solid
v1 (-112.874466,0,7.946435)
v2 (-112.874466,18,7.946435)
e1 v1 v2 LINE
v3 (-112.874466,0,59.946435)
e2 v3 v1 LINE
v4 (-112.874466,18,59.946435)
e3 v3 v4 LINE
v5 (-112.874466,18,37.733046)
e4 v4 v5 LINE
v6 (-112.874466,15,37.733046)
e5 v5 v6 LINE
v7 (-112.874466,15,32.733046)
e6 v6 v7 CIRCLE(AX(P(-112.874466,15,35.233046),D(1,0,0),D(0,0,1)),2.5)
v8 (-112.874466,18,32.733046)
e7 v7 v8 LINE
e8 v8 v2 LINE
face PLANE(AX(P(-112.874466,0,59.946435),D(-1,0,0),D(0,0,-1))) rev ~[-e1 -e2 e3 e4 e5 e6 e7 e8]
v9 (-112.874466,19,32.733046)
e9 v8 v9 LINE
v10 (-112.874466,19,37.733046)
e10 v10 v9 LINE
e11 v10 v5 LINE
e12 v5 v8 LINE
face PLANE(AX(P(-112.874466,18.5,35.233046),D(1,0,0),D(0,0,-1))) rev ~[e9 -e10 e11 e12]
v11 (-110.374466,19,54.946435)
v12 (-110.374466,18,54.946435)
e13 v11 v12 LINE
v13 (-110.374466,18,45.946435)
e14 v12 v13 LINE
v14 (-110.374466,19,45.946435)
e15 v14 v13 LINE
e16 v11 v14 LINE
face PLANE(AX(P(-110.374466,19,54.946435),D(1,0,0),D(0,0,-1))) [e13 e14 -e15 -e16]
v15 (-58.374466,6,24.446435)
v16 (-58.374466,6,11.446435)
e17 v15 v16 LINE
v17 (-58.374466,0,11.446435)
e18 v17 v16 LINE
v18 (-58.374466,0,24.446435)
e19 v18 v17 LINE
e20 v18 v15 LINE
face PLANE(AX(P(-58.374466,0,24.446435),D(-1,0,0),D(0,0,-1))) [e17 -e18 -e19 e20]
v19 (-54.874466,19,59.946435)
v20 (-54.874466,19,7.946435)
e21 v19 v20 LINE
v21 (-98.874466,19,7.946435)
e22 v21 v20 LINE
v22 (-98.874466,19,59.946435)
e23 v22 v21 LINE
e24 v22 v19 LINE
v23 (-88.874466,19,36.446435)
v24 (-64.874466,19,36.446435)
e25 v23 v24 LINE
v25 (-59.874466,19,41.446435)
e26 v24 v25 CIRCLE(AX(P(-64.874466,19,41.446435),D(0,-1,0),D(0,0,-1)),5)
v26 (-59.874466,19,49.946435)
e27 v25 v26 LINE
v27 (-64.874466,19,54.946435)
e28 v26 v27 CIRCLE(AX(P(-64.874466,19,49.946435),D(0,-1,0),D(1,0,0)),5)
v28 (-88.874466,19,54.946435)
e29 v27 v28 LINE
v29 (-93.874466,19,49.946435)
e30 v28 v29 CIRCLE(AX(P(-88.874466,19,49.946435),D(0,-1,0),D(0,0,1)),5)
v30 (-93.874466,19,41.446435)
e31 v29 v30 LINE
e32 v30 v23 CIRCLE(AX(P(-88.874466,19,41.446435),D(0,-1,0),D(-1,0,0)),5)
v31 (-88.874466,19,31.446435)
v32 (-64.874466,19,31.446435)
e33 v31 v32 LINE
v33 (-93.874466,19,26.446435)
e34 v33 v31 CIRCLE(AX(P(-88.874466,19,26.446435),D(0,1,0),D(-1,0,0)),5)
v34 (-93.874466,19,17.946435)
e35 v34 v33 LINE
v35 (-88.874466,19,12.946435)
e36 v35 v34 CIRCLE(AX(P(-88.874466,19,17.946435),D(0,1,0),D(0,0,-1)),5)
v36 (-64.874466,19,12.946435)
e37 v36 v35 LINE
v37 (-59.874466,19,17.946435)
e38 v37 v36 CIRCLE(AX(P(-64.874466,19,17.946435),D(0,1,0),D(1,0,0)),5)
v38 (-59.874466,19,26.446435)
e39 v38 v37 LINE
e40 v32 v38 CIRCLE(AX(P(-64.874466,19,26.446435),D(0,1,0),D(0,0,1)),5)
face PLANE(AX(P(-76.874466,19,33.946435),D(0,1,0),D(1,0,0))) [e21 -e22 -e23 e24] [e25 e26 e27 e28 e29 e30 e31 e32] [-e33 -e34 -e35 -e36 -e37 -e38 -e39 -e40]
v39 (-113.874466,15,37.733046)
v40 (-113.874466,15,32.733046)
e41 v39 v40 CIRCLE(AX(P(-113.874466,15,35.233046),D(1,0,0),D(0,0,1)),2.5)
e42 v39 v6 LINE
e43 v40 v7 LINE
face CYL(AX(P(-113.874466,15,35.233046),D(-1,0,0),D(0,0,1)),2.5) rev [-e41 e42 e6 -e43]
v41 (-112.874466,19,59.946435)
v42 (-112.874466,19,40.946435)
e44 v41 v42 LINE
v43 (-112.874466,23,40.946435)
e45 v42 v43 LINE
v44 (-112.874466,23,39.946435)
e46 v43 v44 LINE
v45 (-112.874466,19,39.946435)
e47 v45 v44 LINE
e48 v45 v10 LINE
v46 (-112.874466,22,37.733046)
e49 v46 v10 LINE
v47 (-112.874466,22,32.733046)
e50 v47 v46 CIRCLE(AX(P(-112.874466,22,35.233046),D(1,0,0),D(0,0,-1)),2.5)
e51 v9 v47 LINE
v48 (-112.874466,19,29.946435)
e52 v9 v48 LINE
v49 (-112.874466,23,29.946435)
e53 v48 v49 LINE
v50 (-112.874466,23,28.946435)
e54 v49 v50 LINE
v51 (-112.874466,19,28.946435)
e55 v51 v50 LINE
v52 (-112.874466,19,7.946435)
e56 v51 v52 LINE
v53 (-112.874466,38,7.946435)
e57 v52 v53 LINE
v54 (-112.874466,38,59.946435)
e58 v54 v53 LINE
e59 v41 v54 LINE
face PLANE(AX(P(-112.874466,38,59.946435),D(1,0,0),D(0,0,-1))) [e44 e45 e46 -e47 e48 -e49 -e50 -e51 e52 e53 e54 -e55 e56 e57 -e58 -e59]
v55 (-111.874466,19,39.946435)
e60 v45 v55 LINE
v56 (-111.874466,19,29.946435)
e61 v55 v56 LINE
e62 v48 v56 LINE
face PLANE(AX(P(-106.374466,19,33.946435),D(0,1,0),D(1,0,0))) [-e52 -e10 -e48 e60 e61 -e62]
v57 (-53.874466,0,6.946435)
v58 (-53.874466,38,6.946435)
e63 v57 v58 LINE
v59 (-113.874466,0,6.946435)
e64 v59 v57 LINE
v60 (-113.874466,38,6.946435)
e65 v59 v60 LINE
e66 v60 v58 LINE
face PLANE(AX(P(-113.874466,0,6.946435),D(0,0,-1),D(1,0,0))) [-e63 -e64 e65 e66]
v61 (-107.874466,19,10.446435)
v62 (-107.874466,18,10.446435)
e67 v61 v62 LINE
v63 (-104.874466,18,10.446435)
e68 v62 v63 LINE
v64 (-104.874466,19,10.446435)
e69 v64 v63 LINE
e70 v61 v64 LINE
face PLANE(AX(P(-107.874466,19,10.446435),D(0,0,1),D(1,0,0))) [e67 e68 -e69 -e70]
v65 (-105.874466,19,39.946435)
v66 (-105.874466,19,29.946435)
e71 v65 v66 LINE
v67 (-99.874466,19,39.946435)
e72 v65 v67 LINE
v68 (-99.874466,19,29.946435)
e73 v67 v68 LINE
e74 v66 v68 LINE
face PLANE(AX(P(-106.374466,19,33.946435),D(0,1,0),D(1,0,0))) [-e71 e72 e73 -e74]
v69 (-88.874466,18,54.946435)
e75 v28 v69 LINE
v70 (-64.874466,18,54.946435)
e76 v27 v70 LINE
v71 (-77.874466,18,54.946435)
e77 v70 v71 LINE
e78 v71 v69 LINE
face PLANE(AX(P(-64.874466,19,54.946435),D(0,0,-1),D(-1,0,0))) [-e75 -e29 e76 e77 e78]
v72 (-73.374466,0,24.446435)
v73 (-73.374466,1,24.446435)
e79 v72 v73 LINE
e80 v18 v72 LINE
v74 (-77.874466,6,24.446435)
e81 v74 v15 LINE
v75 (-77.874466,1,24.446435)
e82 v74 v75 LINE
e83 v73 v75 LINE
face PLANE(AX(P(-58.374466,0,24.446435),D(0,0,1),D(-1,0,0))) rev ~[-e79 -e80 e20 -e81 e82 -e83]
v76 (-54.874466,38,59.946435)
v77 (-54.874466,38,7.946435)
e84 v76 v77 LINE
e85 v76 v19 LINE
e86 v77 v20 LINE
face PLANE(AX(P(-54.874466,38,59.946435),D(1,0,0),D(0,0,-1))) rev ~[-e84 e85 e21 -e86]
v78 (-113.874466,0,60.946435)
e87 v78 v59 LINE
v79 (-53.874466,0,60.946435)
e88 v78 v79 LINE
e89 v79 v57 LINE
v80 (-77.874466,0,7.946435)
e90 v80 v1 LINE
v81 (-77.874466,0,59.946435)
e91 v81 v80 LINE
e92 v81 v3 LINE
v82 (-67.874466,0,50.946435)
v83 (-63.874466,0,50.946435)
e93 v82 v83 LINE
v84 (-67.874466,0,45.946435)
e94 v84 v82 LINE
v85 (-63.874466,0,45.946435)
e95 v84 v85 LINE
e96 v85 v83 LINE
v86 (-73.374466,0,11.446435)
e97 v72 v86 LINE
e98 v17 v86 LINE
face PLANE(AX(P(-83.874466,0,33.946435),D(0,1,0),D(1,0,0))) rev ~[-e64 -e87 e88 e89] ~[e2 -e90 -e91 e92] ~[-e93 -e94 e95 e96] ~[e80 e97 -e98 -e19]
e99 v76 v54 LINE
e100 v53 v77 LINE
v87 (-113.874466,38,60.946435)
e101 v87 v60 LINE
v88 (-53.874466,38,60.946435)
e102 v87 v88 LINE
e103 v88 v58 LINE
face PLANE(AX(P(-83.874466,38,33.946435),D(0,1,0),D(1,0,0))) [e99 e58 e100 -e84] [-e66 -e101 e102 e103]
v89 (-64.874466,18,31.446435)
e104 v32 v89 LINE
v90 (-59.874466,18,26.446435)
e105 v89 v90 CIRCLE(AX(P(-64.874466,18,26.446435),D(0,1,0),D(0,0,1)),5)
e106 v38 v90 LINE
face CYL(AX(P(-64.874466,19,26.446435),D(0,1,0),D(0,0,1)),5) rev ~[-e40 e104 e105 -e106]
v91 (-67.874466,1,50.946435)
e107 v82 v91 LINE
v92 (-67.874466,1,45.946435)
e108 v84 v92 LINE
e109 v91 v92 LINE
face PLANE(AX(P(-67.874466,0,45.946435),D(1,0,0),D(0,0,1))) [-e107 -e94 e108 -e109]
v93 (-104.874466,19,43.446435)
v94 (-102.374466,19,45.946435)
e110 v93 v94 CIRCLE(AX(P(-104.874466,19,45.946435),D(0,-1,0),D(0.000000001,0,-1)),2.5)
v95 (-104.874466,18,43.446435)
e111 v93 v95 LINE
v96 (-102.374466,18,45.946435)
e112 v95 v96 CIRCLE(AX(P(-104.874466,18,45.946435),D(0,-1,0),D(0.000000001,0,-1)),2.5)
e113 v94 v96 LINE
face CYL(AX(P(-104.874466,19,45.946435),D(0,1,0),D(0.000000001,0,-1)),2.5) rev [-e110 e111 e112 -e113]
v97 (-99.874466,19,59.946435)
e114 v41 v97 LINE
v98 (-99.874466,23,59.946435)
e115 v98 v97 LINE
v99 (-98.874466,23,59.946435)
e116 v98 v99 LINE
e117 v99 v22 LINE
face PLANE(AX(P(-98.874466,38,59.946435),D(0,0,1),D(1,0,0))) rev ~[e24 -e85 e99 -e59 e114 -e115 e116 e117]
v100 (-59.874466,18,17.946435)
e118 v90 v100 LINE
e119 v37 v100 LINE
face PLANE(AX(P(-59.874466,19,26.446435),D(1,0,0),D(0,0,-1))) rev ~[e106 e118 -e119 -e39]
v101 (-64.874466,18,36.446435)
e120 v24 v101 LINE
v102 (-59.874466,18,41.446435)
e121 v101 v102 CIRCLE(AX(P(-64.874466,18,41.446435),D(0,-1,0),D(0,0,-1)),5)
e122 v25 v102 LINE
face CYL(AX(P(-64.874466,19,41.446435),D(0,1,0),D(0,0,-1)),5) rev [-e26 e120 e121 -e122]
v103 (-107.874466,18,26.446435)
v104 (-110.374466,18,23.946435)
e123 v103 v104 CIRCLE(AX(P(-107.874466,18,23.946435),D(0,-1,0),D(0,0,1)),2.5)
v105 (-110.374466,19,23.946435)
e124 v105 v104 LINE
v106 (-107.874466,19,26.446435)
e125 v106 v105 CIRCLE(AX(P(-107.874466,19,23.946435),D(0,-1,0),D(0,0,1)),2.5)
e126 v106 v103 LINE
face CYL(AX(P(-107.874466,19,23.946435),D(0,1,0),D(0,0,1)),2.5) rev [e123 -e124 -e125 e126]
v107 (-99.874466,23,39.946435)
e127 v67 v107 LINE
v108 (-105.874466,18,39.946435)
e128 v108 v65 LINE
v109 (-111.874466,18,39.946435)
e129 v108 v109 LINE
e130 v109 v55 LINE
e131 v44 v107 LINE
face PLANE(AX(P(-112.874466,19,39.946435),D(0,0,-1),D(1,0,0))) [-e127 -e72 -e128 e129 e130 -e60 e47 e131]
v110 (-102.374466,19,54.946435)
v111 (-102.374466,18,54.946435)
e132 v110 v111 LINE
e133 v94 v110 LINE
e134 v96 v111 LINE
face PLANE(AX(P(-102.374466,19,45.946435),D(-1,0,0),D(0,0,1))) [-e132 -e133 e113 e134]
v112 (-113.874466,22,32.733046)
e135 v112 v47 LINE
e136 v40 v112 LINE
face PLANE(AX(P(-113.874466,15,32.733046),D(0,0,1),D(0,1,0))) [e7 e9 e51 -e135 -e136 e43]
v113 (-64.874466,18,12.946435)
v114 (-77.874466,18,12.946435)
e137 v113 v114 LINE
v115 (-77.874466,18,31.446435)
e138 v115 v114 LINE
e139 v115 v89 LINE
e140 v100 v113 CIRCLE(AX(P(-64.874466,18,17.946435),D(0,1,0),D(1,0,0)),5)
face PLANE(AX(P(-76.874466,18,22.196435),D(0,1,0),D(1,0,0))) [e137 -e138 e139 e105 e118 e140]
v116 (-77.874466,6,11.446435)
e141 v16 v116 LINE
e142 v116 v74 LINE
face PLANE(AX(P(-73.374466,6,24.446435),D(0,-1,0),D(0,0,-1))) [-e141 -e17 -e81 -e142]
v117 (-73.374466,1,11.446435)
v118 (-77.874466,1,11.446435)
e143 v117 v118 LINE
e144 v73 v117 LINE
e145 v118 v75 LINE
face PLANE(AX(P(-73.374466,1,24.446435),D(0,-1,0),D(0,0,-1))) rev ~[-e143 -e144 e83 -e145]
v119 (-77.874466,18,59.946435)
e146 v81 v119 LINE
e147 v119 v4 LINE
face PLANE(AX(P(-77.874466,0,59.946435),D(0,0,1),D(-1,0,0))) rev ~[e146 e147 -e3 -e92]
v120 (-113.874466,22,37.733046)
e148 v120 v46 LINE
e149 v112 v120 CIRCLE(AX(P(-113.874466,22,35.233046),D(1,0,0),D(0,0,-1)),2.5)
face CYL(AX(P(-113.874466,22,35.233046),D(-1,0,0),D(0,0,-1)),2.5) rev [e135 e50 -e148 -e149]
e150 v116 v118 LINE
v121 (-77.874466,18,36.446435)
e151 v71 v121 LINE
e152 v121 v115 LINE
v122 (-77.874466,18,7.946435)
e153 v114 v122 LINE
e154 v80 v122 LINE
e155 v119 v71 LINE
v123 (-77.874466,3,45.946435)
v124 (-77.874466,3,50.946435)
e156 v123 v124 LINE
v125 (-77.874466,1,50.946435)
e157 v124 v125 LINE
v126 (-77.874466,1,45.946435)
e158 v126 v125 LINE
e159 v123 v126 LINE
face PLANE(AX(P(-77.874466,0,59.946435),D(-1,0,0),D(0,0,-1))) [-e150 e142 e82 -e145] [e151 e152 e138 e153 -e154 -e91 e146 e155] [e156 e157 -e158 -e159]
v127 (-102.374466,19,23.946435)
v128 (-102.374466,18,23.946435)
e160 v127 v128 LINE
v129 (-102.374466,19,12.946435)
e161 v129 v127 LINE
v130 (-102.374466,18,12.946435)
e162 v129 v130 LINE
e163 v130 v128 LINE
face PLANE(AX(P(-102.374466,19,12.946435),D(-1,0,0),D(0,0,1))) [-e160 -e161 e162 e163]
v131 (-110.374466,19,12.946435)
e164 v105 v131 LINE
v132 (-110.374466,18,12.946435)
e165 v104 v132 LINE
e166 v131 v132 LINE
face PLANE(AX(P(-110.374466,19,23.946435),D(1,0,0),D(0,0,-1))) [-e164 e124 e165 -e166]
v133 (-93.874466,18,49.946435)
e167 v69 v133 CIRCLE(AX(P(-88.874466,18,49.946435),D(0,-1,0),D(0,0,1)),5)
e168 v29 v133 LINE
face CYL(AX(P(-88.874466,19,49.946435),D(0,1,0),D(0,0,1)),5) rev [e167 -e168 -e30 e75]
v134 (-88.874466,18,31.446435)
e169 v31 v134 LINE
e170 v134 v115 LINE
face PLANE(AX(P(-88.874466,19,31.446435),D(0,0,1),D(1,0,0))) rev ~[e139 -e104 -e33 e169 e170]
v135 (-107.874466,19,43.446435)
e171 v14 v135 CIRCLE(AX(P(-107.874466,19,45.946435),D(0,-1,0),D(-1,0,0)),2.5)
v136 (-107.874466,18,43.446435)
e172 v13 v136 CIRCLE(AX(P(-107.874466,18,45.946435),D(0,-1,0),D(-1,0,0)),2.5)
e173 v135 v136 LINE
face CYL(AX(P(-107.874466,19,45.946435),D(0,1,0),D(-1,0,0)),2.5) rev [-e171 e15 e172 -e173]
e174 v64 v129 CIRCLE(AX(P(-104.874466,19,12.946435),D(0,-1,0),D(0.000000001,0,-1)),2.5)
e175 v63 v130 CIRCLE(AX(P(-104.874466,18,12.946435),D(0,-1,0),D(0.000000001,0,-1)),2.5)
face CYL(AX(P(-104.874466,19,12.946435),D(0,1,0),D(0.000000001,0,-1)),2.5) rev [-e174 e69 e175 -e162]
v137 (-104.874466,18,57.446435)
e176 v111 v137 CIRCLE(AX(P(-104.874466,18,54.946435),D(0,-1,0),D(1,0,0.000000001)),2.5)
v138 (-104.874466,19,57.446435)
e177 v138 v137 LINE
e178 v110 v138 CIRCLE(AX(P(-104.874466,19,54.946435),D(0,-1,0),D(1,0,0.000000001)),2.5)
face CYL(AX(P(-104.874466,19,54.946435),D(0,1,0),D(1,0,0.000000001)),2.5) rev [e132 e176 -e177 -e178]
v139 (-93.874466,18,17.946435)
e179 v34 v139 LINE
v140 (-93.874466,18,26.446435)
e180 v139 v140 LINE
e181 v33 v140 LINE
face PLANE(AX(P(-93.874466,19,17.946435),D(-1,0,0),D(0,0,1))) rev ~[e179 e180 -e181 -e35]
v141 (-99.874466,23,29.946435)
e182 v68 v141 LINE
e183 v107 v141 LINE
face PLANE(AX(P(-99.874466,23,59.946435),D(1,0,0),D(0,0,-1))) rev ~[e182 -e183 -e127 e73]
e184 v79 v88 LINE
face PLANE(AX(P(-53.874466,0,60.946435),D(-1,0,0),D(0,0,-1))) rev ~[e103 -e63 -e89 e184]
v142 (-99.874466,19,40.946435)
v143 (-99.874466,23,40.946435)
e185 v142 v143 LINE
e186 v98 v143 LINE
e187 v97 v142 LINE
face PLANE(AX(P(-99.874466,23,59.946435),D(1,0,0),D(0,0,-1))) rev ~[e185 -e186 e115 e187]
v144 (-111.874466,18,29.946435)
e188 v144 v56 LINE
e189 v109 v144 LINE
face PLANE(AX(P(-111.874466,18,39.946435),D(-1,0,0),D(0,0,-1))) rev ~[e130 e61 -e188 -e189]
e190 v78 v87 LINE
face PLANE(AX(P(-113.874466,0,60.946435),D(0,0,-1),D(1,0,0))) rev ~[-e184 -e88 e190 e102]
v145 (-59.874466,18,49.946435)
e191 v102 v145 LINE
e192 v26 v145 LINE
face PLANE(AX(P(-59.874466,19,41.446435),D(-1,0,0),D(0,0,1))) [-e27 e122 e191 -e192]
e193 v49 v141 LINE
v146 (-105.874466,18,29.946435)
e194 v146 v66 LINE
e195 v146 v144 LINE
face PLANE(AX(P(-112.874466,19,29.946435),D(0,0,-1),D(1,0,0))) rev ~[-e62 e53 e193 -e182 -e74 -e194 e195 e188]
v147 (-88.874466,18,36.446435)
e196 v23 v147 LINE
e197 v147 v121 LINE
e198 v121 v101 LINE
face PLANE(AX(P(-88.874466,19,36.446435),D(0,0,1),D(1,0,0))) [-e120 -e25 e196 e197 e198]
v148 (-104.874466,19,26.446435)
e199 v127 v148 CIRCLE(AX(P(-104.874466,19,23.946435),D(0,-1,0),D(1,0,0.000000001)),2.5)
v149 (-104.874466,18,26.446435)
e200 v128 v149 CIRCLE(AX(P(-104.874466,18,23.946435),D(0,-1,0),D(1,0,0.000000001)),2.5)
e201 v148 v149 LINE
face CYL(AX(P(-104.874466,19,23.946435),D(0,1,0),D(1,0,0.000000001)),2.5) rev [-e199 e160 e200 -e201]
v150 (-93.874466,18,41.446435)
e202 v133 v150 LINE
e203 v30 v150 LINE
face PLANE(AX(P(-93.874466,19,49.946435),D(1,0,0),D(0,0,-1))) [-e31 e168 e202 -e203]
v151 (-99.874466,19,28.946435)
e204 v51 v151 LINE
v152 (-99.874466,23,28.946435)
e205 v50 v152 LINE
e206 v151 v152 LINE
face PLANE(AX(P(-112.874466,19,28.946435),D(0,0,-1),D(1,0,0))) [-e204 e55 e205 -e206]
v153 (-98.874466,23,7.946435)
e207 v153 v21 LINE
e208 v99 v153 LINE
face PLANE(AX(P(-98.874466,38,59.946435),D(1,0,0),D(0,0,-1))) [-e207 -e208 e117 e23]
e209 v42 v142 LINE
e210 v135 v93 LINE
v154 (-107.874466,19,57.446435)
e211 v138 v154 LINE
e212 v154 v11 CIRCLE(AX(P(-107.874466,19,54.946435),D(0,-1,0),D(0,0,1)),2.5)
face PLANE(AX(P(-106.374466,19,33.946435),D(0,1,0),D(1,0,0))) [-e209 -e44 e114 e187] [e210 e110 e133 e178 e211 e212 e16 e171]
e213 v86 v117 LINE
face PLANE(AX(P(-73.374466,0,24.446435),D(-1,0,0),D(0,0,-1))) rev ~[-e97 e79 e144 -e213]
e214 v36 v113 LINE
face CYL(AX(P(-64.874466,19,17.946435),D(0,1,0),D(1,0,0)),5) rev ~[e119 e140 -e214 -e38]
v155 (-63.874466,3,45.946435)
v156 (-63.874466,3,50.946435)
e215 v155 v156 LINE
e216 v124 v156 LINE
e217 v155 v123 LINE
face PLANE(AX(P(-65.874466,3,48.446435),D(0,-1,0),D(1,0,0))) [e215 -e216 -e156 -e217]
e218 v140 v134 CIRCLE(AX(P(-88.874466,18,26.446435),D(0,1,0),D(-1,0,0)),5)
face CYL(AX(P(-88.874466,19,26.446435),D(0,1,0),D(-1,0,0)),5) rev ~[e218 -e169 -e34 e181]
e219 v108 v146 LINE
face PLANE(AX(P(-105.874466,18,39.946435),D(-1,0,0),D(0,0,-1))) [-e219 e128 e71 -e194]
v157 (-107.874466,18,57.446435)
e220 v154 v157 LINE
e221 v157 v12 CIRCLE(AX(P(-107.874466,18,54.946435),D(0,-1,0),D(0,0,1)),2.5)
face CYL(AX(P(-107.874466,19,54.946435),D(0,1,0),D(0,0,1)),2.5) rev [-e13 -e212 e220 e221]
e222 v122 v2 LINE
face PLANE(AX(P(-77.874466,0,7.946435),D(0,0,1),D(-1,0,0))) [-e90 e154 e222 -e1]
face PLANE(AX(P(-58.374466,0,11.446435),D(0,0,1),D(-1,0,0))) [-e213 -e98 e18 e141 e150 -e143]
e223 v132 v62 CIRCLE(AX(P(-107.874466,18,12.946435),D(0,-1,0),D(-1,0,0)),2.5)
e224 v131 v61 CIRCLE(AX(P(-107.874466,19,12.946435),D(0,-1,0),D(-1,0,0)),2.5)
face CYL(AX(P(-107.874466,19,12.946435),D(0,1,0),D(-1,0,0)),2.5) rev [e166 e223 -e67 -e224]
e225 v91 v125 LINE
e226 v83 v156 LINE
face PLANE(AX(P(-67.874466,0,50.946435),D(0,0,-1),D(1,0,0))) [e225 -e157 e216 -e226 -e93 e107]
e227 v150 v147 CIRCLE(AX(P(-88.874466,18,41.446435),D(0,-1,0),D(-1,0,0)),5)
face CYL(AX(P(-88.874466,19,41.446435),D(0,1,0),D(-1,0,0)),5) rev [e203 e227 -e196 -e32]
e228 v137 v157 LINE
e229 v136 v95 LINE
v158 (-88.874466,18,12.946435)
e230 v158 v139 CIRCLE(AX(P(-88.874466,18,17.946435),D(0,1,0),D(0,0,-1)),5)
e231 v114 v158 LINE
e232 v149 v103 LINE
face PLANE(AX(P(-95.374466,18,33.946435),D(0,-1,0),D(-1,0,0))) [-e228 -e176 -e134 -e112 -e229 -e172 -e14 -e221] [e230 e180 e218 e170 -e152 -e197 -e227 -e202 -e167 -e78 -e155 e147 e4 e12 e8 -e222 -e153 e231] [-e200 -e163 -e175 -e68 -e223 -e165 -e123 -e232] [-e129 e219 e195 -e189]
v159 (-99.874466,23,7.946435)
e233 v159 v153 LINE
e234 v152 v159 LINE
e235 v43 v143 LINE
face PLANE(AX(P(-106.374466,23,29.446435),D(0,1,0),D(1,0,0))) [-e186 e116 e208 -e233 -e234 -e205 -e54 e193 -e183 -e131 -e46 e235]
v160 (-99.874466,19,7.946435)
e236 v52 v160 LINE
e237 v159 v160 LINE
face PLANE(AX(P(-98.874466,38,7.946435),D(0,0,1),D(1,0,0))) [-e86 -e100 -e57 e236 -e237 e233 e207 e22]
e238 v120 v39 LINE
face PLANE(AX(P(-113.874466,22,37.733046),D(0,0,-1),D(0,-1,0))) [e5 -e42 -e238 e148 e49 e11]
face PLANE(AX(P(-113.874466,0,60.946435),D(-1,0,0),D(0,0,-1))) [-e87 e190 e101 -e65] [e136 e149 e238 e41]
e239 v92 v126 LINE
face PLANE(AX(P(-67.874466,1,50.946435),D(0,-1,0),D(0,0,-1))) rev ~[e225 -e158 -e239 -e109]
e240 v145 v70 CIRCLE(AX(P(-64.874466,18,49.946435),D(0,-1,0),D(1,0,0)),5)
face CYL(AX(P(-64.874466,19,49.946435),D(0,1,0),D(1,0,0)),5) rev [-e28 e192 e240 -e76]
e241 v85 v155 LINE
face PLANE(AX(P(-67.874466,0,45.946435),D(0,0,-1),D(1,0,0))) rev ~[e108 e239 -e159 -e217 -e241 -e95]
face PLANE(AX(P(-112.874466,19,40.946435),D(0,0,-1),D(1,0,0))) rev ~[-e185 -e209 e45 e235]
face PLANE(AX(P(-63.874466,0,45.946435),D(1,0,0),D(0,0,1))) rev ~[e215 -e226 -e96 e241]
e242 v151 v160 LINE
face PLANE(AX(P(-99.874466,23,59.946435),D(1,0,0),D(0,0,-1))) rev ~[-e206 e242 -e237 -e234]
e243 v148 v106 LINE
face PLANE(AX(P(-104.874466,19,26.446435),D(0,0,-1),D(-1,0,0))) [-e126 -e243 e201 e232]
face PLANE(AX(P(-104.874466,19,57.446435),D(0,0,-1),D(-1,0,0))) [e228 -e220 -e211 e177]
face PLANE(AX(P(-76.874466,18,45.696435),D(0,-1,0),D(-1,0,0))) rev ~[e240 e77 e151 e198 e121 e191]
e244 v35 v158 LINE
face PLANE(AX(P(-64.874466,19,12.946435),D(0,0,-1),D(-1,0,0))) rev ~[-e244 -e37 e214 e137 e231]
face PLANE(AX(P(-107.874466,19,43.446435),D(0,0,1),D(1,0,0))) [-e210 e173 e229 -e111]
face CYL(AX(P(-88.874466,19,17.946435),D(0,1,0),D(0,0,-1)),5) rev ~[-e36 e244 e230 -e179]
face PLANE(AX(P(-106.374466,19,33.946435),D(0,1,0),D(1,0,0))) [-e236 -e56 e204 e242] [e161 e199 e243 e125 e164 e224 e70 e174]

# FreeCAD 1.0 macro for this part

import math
import FreeCAD as App
import Part
import Sketcher

V = App.Vector

doc = App.newDocument("Part")
body = doc.addObject("PartDesign::Body", "Body")

# Sketch on XZ plane
sketch1 = body.newObject("Sketcher::SketchObject", "Sketch")
sketch1.AttachmentSupport = (doc.getObject("XZ_Plane"), [""])
sketch1.MapMode = "FlatFace"
sketch1.addGeometry(Part.LineSegment(V(-114, 7, 0), V(-114, 61, 0)), False)
sketch1.addGeometry(Part.LineSegment(V(-114, 61, 0), V(-54, 61, 0)), False)
sketch1.addGeometry(Part.LineSegment(V(-54, 61, 0), V(-54, 7, 0)), False)
sketch1.addGeometry(Part.LineSegment(V(-54, 7, 0), V(-114, 7, 0)), False)
sketch1.addConstraint(Sketcher.Constraint("Coincident", 0, 2, 1, 1))
sketch1.addConstraint(Sketcher.Constraint("Coincident", 1, 2, 2, 1))
sketch1.addConstraint(Sketcher.Constraint("Coincident", 2, 2, 3, 1))
sketch1.addConstraint(Sketcher.Constraint("Coincident", 3, 2, 0, 1))
sketch1.addConstraint(Sketcher.Constraint("Vertical", 0))
sketch1.addConstraint(Sketcher.Constraint("Horizontal", 1))
sketch1.addConstraint(Sketcher.Constraint("Vertical", 2))
sketch1.addConstraint(Sketcher.Constraint("Horizontal", 3))
sketch1.addConstraint(Sketcher.Constraint("DistanceX", 1, 1, 1, 2, 60.0))
sketch1.addConstraint(Sketcher.Constraint("DistanceY", 0, 1, 0, 2, 54.0))
sketch1.addConstraint(Sketcher.Constraint("DistanceX", 0, 2, -1, 1, 113.874466))
sketch1.addConstraint(Sketcher.Constraint("DistanceY", -1, 1, 0, 2, 60.946435))
pad1 = body.newObject("PartDesign::Pad", "Pad")
pad1.Profile = sketch1
pad1.Length = 38
pad1.Reversed = True

# Sketch on XZ plane
sketch2 = body.newObject("Sketcher::SketchObject", "Sketch001")
sketch2.AttachmentSupport = (doc.getObject("XZ_Plane"), [""])
sketch2.MapMode = "FlatFace"
sketch2.AttachmentOffset = App.Placement(V(0, 0, -38), App.Rotation())
sketch2.addGeometry(Part.LineSegment(V(-99, 8, 0), V(-99, 60, 0)), False)
sketch2.addGeometry(Part.LineSegment(V(-99, 60, 0), V(-55, 60, 0)), False)
sketch2.addGeometry(Part.LineSegment(V(-55, 60, 0), V(-55, 8, 0)), False)
sketch2.addGeometry(Part.LineSegment(V(-55, 8, 0), V(-99, 8, 0)), False)
sketch2.addConstraint(Sketcher.Constraint("Coincident", 0, 2, 1, 1))
sketch2.addConstraint(Sketcher.Constraint("Coincident", 1, 2, 2, 1))
sketch2.addConstraint(Sketcher.Constraint("Coincident", 2, 2, 3, 1))
sketch2.addConstraint(Sketcher.Constraint("Coincident", 3, 2, 0, 1))
sketch2.addConstraint(Sketcher.Constraint("Vertical", 0))
sketch2.addConstraint(Sketcher.Constraint("Horizontal", 1))
sketch2.addConstraint(Sketcher.Constraint("Vertical", 2))
sketch2.addConstraint(Sketcher.Constraint("Horizontal", 3))
sketch2.addConstraint(Sketcher.Constraint("DistanceX", 1, 1, 1, 2, 44.0))
sketch2.addConstraint(Sketcher.Constraint("DistanceY", 0, 1, 0, 2, 52.0))
sketch2.addConstraint(Sketcher.Constraint("DistanceX", 0, 2, -1, 1, 98.874466))
sketch2.addConstraint(Sketcher.Constraint("DistanceY", -1, 1, 0, 2, 59.946435))
pocket1 = body.newObject("PartDesign::Pocket", "Pocket")
pocket1.Profile = sketch2
pocket1.Length = 19
pocket1.Reversed = True

# Sketch on XZ plane
sketch3 = body.newObject("Sketcher::SketchObject", "Sketch002")
sketch3.AttachmentSupport = (doc.getObject("XZ_Plane"), [""])
sketch3.MapMode = "FlatFace"
sketch3.addGeometry(Part.LineSegment(V(-78, 8, 0), V(-78, 60, 0)), False)
sketch3.addGeometry(Part.LineSegment(V(-78, 60, 0), V(-113, 60, 0)), False)
sketch3.addGeometry(Part.LineSegment(V(-113, 60, 0), V(-113, 8, 0)), False)
sketch3.addGeometry(Part.LineSegment(V(-113, 8, 0), V(-78, 8, 0)), False)
sketch3.addConstraint(Sketcher.Constraint("Coincident", 0, 2, 1, 1))
sketch3.addConstraint(Sketcher.Constraint("Coincident", 1, 2, 2, 1))
sketch3.addConstraint(Sketcher.Constraint("Coincident", 2, 2, 3, 1))
sketch3.addConstraint(Sketcher.Constraint("Coincident", 3, 2, 0, 1))
sketch3.addConstraint(Sketcher.Constraint("Vertical", 0))
sketch3.addConstraint(Sketcher.Constraint("Horizontal", 1))
sketch3.addConstraint(Sketcher.Constraint("Vertical", 2))
sketch3.addConstraint(Sketcher.Constraint("Horizontal", 3))
sketch3.addConstraint(Sketcher.Constraint("DistanceX", 1, 2, 1, 1, 35.0))
sketch3.addConstraint(Sketcher.Constraint("DistanceY", 0, 1, 0, 2, 52.0))
sketch3.addConstraint(Sketcher.Constraint("DistanceX", 0, 2, -1, 1, 77.874466))
sketch3.addConstraint(Sketcher.Constraint("DistanceY", -1, 1, 0, 2, 59.946435))
pocket2 = body.newObject("PartDesign::Pocket", "Pocket001")
pocket2.Profile = sketch3
pocket2.Length = 18

# Sketch on XZ plane
sketch4 = body.newObject("Sketcher::SketchObject", "Sketch003")
sketch4.AttachmentSupport = (doc.getObject("XZ_Plane"), [""])
sketch4.MapMode = "FlatFace"
sketch4.AttachmentOffset = App.Placement(V(0, 0, -18), App.Rotation())
sketch4.addGeometry(Part.LineSegment(V(-106, 30, 0), V(-106, 40, 0)), False)
sketch4.addGeometry(Part.LineSegment(V(-106, 40, 0), V(-112, 40, 0)), False)
sketch4.addGeometry(Part.LineSegment(V(-112, 40, 0), V(-112, 30, 0)), False)
sketch4.addGeometry(Part.LineSegment(V(-112, 30, 0), V(-106, 30, 0)), False)
sketch4.addConstraint(Sketcher.Constraint("Coincident", 0, 2, 1, 1))
sketch4.addConstraint(Sketcher.Constraint("Coincident", 1, 2, 2, 1))
sketch4.addConstraint(Sketcher.Constraint("Coincident", 2, 2, 3, 1))
sketch4.addConstraint(Sketcher.Constraint("Coincident", 3, 2, 0, 1))
sketch4.addConstraint(Sketcher.Constraint("Vertical", 0))
sketch4.addConstraint(Sketcher.Constraint("Horizontal", 1))
sketch4.addConstraint(Sketcher.Constraint("Vertical", 2))
sketch4.addConstraint(Sketcher.Constraint("Horizontal", 3))
sketch4.addConstraint(Sketcher.Constraint("DistanceX", 1, 2, 1, 1, 6.0))
sketch4.addConstraint(Sketcher.Constraint("DistanceY", 0, 1, 0, 2, 10.0))
sketch4.addConstraint(Sketcher.Constraint("DistanceX", 0, 2, -1, 1, 105.874466))
sketch4.addConstraint(Sketcher.Constraint("DistanceY", -1, 1, 0, 2, 39.946435))
pocket3 = body.newObject("PartDesign::Pocket", "Pocket002")
pocket3.Profile = sketch4
pocket3.Length = 38

# Sketch on XZ plane
sketch5 = body.newObject("Sketcher::SketchObject", "Sketch004")
sketch5.AttachmentSupport = (doc.getObject("XZ_Plane"), [""])
sketch5.MapMode = "FlatFace"
sketch5.AttachmentOffset = App.Placement(V(0, 0, -38), App.Rotation())
sketch5.addGeometry(Part.LineSegment(V(-113, 8, 0), V(-113, 60, 0)), False)
sketch5.addGeometry(Part.LineSegment(V(-113, 60, 0), V(-99, 60, 0)), False)
sketch5.addGeometry(Part.LineSegment(V(-99, 60, 0), V(-99, 8, 0)), False)
sketch5.addGeometry(Part.LineSegment(V(-99, 8, 0), V(-113, 8, 0)), False)
sketch5.addConstraint(Sketcher.Constraint("Coincident", 0, 2, 1, 1))
sketch5.addConstraint(Sketcher.Constraint("Coincident", 1, 2, 2, 1))
sketch5.addConstraint(Sketcher.Constraint("Coincident", 2, 2, 3, 1))
sketch5.addConstraint(Sketcher.Constraint("Coincident", 3, 2, 0, 1))
sketch5.addConstraint(Sketcher.Constraint("Vertical", 0))
sketch5.addConstraint(Sketcher.Constraint("Horizontal", 1))
sketch5.addConstraint(Sketcher.Constraint("Vertical", 2))
sketch5.addConstraint(Sketcher.Constraint("Horizontal", 3))
sketch5.addConstraint(Sketcher.Constraint("DistanceX", 1, 1, 1, 2, 14.0))
sketch5.addConstraint(Sketcher.Constraint("DistanceY", 0, 1, 0, 2, 52.0))
sketch5.addConstraint(Sketcher.Constraint("DistanceX", 0, 2, -1, 1, 112.874466))
sketch5.addConstraint(Sketcher.Constraint("DistanceY", -1, 1, 0, 2, 59.946435))
pocket4 = body.newObject("PartDesign::Pocket", "Pocket003")
pocket4.Profile = sketch5
pocket4.Length = 15
pocket4.Reversed = True

# Sketch on XZ plane
sketch6 = body.newObject("Sketcher::SketchObject", "Sketch005")
sketch6.AttachmentSupport = (doc.getObject("XZ_Plane"), [""])
sketch6.MapMode = "FlatFace"
sketch6.AttachmentOffset = App.Placement(V(0, 0, -23), App.Rotation())
sketch6.addGeometry(Part.LineSegment(V(-113, 8, 0), V(-113, 60, 0)), False)
sketch6.addGeometry(Part.LineSegment(V(-113, 60, 0), V(-100, 60, 0)), False)
sketch6.addGeometry(Part.LineSegment(V(-100, 60, 0), V(-100, 8, 0)), False)
sketch6.addGeometry(Part.LineSegment(V(-100, 8, 0), V(-113, 8, 0)), False)
sketch6.addConstraint(Sketcher.Constraint("Coincident", 0, 2, 1, 1))
sketch6.addConstraint(Sketcher.Constraint("Coincident", 1, 2, 2, 1))
sketch6.addConstraint(Sketcher.Constraint("Coincident", 2, 2, 3, 1))
sketch6.addConstraint(Sketcher.Constraint("Coincident", 3, 2, 0, 1))
sketch6.addConstraint(Sketcher.Constraint("Vertical", 0))
sketch6.addConstraint(Sketcher.Constraint("Horizontal", 1))
sketch6.addConstraint(Sketcher.Constraint("Vertical", 2))
sketch6.addConstraint(Sketcher.Constraint("Horizontal", 3))
sketch6.addConstraint(Sketcher.Constraint("DistanceX", 1, 1, 1, 2, 13.0))
sketch6.addConstraint(Sketcher.Constraint("DistanceY", 0, 1, 0, 2, 52.0))
sketch6.addConstraint(Sketcher.Constraint("DistanceX", 0, 2, -1, 1, 112.874466))
sketch6.addConstraint(Sketcher.Constraint("DistanceY", -1, 1, 0, 2, 59.946435))
pocket5 = body.newObject("PartDesign::Pocket", "Pocket004")
pocket5.Profile = sketch6
pocket5.Length = 4
pocket5.Reversed = True

# Sketch on XZ plane
sketch7 = body.newObject("Sketcher::SketchObject", "Sketch006")
sketch7.AttachmentSupport = (doc.getObject("XZ_Plane"), [""])
sketch7.MapMode = "FlatFace"
sketch7.addGeometry(Part.LineSegment(V(-58, 11, 0), V(-58, 24, 0)), False)
sketch7.addGeometry(Part.LineSegment(V(-58, 24, 0), V(-73, 24, 0)), False)
sketch7.addGeometry(Part.LineSegment(V(-73, 24, 0), V(-73, 11, 0)), False)
sketch7.addGeometry(Part.LineSegment(V(-73, 11, 0), V(-58, 11, 0)), False)
sketch7.addConstraint(Sketcher.Constraint("Coincident", 0, 2, 1, 1))
sketch7.addConstraint(Sketcher.Constraint("Coincident", 1, 2, 2, 1))
sketch7.addConstraint(Sketcher.Constraint("Coincident", 2, 2, 3, 1))
sketch7.addConstraint(Sketcher.Constraint("Coincident", 3, 2, 0, 1))
sketch7.addConstraint(Sketcher.Constraint("Vertical", 0))
sketch7.addConstraint(Sketcher.Constraint("Horizontal", 1))
sketch7.addConstraint(Sketcher.Constraint("Vertical", 2))
sketch7.addConstraint(Sketcher.Constraint("Horizontal", 3))
sketch7.addConstraint(Sketcher.Constraint("DistanceX", 1, 2, 1, 1, 15.0))
sketch7.addConstraint(Sketcher.Constraint("DistanceY", 0, 1, 0, 2, 13.0))
sketch7.addConstraint(Sketcher.Constraint("DistanceX", 0, 2, -1, 1, 58.374466))
sketch7.addConstraint(Sketcher.Constraint("DistanceY", -1, 1, 0, 2, 24.446435))
pocket6 = body.newObject("PartDesign::Pocket", "Pocket005")
pocket6.Profile = sketch7
pocket6.Length = 6

# Sketch on YZ plane
sketch8 = body.newObject("Sketcher::SketchObject", "Sketch007")
sketch8.AttachmentSupport = (doc.getObject("YZ_Plane"), [""])
sketch8.MapMode = "FlatFace"
sketch8.AttachmentOffset = App.Placement(V(0, 0, -73.374466), App.Rotation())
sketch8.addGeometry(Part.LineSegment(V(6, 24, 0), V(1, 24, 0)), False)
sketch8.addGeometry(Part.LineSegment(V(1, 24, 0), V(1, 11, 0)), False)
sketch8.addGeometry(Part.LineSegment(V(1, 11, 0), V(6, 11, 0)), False)
sketch8.addGeometry(Part.LineSegment(V(6, 11, 0), V(6, 24, 0)), False)
sketch8.addConstraint(Sketcher.Constraint("Coincident", 0, 2, 1, 1))
sketch8.addConstraint(Sketcher.Constraint("Coincident", 1, 2, 2, 1))
sketch8.addConstraint(Sketcher.Constraint("Coincident", 2, 2, 3, 1))
sketch8.addConstraint(Sketcher.Constraint("Coincident", 3, 2, 0, 1))
sketch8.addConstraint(Sketcher.Constraint("Horizontal", 0))
sketch8.addConstraint(Sketcher.Constraint("Vertical", 1))
sketch8.addConstraint(Sketcher.Constraint("Horizontal", 2))
sketch8.addConstraint(Sketcher.Constraint("Vertical", 3))
sketch8.addConstraint(Sketcher.Constraint("DistanceX", 0, 2, 0, 1, 5.0))
sketch8.addConstraint(Sketcher.Constraint("DistanceY", 1, 2, 1, 1, 13.0))
sketch8.addConstraint(Sketcher.Constraint("DistanceX", -1, 1, 0, 2, 1.0))
sketch8.addConstraint(Sketcher.Constraint("DistanceY", -1, 1, 0, 2, 24.446435))
pocket7 = body.newObject("PartDesign::Pocket", "Pocket006")
pocket7.Profile = sketch8
pocket7.Length = 6

# Sketch on XZ plane
sketch9 = body.newObject("Sketcher::SketchObject", "Sketch008")
sketch9.AttachmentSupport = (doc.getObject("XZ_Plane"), [""])
sketch9.MapMode = "FlatFace"
sketch9.addGeometry(Part.LineSegment(V(-67.9, 50.9, 0), V(-67.9, 45.9, 0)), False)
sketch9.addGeometry(Part.LineSegment(V(-67.9, 45.9, 0), V(-63.9, 45.9, 0)), False)
sketch9.addGeometry(Part.LineSegment(V(-63.9, 45.9, 0), V(-63.9, 50.9, 0)), False)
sketch9.addGeometry(Part.LineSegment(V(-63.9, 50.9, 0), V(-67.9, 50.9, 0)), False)
sketch9.addConstraint(Sketcher.Constraint("Coincident", 0, 2, 1, 1))
sketch9.addConstraint(Sketcher.Constraint("Coincident", 1, 2, 2, 1))
sketch9.addConstraint(Sketcher.Constraint("Coincident", 2, 2, 3, 1))
sketch9.addConstraint(Sketcher.Constraint("Coincident", 3, 2, 0, 1))
sketch9.addConstraint(Sketcher.Constraint("Vertical", 0))
sketch9.addConstraint(Sketcher.Constraint("Horizontal", 1))
sketch9.addConstraint(Sketcher.Constraint("Vertical", 2))
sketch9.addConstraint(Sketcher.Constraint("Horizontal", 3))
sketch9.addConstraint(Sketcher.Constraint("DistanceX", 1, 1, 1, 2, 4.0))
sketch9.addConstraint(Sketcher.Constraint("DistanceY", 0, 2, 0, 1, 5.0))
sketch9.addConstraint(Sketcher.Constraint("DistanceX", 0, 2, -1, 1, 67.874466))
sketch9.addConstraint(Sketcher.Constraint("DistanceY", -1, 1, 0, 2, 45.946435))
pocket8 = body.newObject("PartDesign::Pocket", "Pocket007")
pocket8.Profile = sketch9
pocket8.Length = 3

# Sketch on YZ plane
sketch10 = body.newObject("Sketcher::SketchObject", "Sketch009")
sketch10.AttachmentSupport = (doc.getObject("YZ_Plane"), [""])
sketch10.MapMode = "FlatFace"
sketch10.AttachmentOffset = App.Placement(V(0, 0, -67.874466), App.Rotation())
sketch10.addGeometry(Part.LineSegment(V(3, 50.9, 0), V(1, 50.9, 0)), False)
sketch10.addGeometry(Part.LineSegment(V(1, 50.9, 0), V(1, 45.9, 0)), False)
sketch10.addGeometry(Part.LineSegment(V(1, 45.9, 0), V(3, 45.9, 0)), False)
sketch10.addGeometry(Part.LineSegment(V(3, 45.9, 0), V(3, 50.9, 0)), False)
sketch10.addConstraint(Sketcher.Constraint("Coincident", 0, 2, 1, 1))
sketch10.addConstraint(Sketcher.Constraint("Coincident", 1, 2, 2, 1))
sketch10.addConstraint(Sketcher.Constraint("Coincident", 2, 2, 3, 1))
sketch10.addConstraint(Sketcher.Constraint("Coincident", 3, 2, 0, 1))
sketch10.addConstraint(Sketcher.Constraint("Horizontal", 0))
sketch10.addConstraint(Sketcher.Constraint("Vertical", 1))
sketch10.addConstraint(Sketcher.Constraint("Horizontal", 2))
sketch10.addConstraint(Sketcher.Constraint("Vertical", 3))
sketch10.addConstraint(Sketcher.Constraint("DistanceX", 0, 2, 0, 1, 2.0))
sketch10.addConstraint(Sketcher.Constraint("DistanceY", 1, 2, 1, 1, 5.0))
sketch10.addConstraint(Sketcher.Constraint("DistanceX", -1, 1, 0, 2, 1.0))
sketch10.addConstraint(Sketcher.Constraint("DistanceY", -1, 1, 0, 2, 50.946435))
pocket9 = body.newObject("PartDesign::Pocket", "Pocket008")
pocket9.Profile = sketch10
pocket9.Length = 13

# Sketch on YZ plane
sketch11 = body.newObject("Sketcher::SketchObject", "Sketch010")
sketch11.AttachmentSupport = (doc.getObject("YZ_Plane"), [""])
sketch11.MapMode = "FlatFace"
sketch11.AttachmentOffset = App.Placement(V(0, 0, -113.874466), App.Rotation())
sketch11.addGeometry(Part.LineSegment(V(22, 32.7, 0), V(15, 32.7, 0)), False)
sketch11.addGeometry(Part.ArcOfCircle(Part.Circle(V(15, 35.2, 0), V(0, 0, 1), 2.5), math.radians(90), math.radians(270)), False)
sketch11.addGeometry(Part.LineSegment(V(15, 37.7, 0), V(22, 37.7, 0)), False)
sketch11.addGeometry(Part.ArcOfCircle(Part.Circle(V(22, 35.2, 0), V(0, 0, 1), 2.5), math.radians(-90), math.radians(90)), False)
sketch11.addConstraint(Sketcher.Constraint("Tangent", 0, 2, 1, 2))
sketch11.addConstraint(Sketcher.Constraint("Tangent", 1, 1, 2, 1))
sketch11.addConstraint(Sketcher.Constraint("Tangent", 2, 2, 3, 2))
sketch11.addConstraint(Sketcher.Constraint("Tangent", 3, 1, 0, 1))
sketch11.addConstraint(Sketcher.Constraint("Horizontal", 0))
sketch11.addConstraint(Sketcher.Constraint("Horizontal", 2))
sketch11.addConstraint(Sketcher.Constraint("Radius", 1, 2.5))
sketch11.addConstraint(Sketcher.Constraint("DistanceX", 0, 2, 0, 1, 7.0))
sketch11.addConstraint(Sketcher.Constraint("DistanceX", -1, 1, 1, 3, 15.0))
sketch11.addConstraint(Sketcher.Constraint("DistanceY", -1, 1, 1, 3, 35.233046))
pocket10 = body.newObject("PartDesign::Pocket", "Pocket009")
pocket10.Profile = sketch11
pocket10.Length = 1
pocket10.Reversed = True

# Sketch on XZ plane
sketch12 = body.newObject("Sketcher::SketchObject", "Sketch011")
sketch12.AttachmentSupport = (doc.getObject("XZ_Plane"), [""])
sketch12.MapMode = "FlatFace"
sketch12.AttachmentOffset = App.Placement(V(0, 0, -19), App.Rotation())
sketch12.addGeometry(Part.LineSegment(V(-112.9, 39.9, 0), V(-112.9, 40.9, 0)), False)
sketch12.addGeometry(Part.LineSegment(V(-112.9, 40.9, 0), V(-99.9, 40.9, 0)), False)
sketch12.addGeometry(Part.LineSegment(V(-99.9, 40.9, 0), V(-99.9, 39.9, 0)), False)
sketch12.addGeometry(Part.LineSegment(V(-99.9, 39.9, 0), V(-112.9, 39.9, 0)), False)
sketch12.addConstraint(Sketcher.Constraint("Coincident", 0, 2, 1, 1))
sketch12.addConstraint(Sketcher.Constraint("Coincident", 1, 2, 2, 1))
sketch12.addConstraint(Sketcher.Constraint("Coincident", 2, 2, 3, 1))
sketch12.addConstraint(Sketcher.Constraint("Coincident", 3, 2, 0, 1))
sketch12.addConstraint(Sketcher.Constraint("Vertical", 0))
sketch12.addConstraint(Sketcher.Constraint("Horizontal", 1))
sketch12.addConstraint(Sketcher.Constraint("Vertical", 2))
sketch12.addConstraint(Sketcher.Constraint("Horizontal", 3))
sketch12.addConstraint(Sketcher.Constraint("DistanceX", 1, 1, 1, 2, 13.0))
sketch12.addConstraint(Sketcher.Constraint("DistanceY", 0, 1, 0, 2, 1.0))
sketch12.addConstraint(Sketcher.Constraint("DistanceX", 0, 2, -1, 1, 112.874466))
sketch12.addConstraint(Sketcher.Constraint("DistanceY", -1, 1, 0, 2, 40.946435))
pad2 = body.newObject("PartDesign::Pad", "Pad001")
pad2.Profile = sketch12
pad2.Length = 4
pad2.Reversed = True

# Sketch on XZ plane
sketch13 = body.newObject("Sketcher::SketchObject", "Sketch012")
sketch13.AttachmentSupport = (doc.getObject("XZ_Plane"), [""])
sketch13.MapMode = "FlatFace"
sketch13.AttachmentOffset = App.Placement(V(0, 0, -19), App.Rotation())
sketch13.addGeometry(Part.LineSegment(V(-112.9, 28.9, 0), V(-112.9, 29.9, 0)), False)
sketch13.addGeometry(Part.LineSegment(V(-112.9, 29.9, 0), V(-99.9, 29.9, 0)), False)
sketch13.addGeometry(Part.LineSegment(V(-99.9, 29.9, 0), V(-99.9, 28.9, 0)), False)
sketch13.addGeometry(Part.LineSegment(V(-99.9, 28.9, 0), V(-112.9, 28.9, 0)), False)
sketch13.addConstraint(Sketcher.Constraint("Coincident", 0, 2, 1, 1))
sketch13.addConstraint(Sketcher.Constraint("Coincident", 1, 2, 2, 1))
sketch13.addConstraint(Sketcher.Constraint("Coincident", 2, 2, 3, 1))
sketch13.addConstraint(Sketcher.Constraint("Coincident", 3, 2, 0, 1))
sketch13.addConstraint(Sketcher.Constraint("Vertical", 0))
sketch13.addConstraint(Sketcher.Constraint("Horizontal", 1))
sketch13.addConstraint(Sketcher.Constraint("Vertical", 2))
sketch13.addConstraint(Sketcher.Constraint("Horizontal", 3))
sketch13.addConstraint(Sketcher.Constraint("DistanceX", 1, 1, 1, 2, 13.0))
sketch13.addConstraint(Sketcher.Constraint("DistanceY", 0, 1, 0, 2, 1.0))
sketch13.addConstraint(Sketcher.Constraint("DistanceX", 0, 2, -1, 1, 112.874466))
sketch13.addConstraint(Sketcher.Constraint("DistanceY", -1, 1, 0, 2, 29.946435))
pad3 = body.newObject("PartDesign::Pad", "Pad002")
pad3.Profile = sketch13
pad3.Length = 4
pad3.Reversed = True

# Sketch on XZ plane
sketch14 = body.newObject("Sketcher::SketchObject", "Sketch013")
sketch14.AttachmentSupport = (doc.getObject("XZ_Plane"), [""])
sketch14.MapMode = "FlatFace"
sketch14.AttachmentOffset = App.Placement(V(0, 0, -19), App.Rotation())
sketch14.addGeometry(Part.LineSegment(V(-89, 55, 0), V(-65, 55, 0)), False)
sketch14.addGeometry(Part.ArcOfCircle(Part.Circle(V(-65, 50, 0), V(0, 0, 1), 5), math.radians(0), math.radians(90)), False)
sketch14.addGeometry(Part.LineSegment(V(-60, 50, 0), V(-60, 41, 0)), False)
sketch14.addGeometry(Part.ArcOfCircle(Part.Circle(V(-65, 41, 0), V(0, 0, 1), 5), math.radians(-90), math.radians(0)), False)
sketch14.addGeometry(Part.LineSegment(V(-65, 36, 0), V(-89, 36, 0)), False)
sketch14.addGeometry(Part.ArcOfCircle(Part.Circle(V(-89, 41, 0), V(0, 0, 1), 5), math.radians(180), math.radians(270)), False)
sketch14.addGeometry(Part.LineSegment(V(-94, 41, 0), V(-94, 50, 0)), False)
sketch14.addGeometry(Part.ArcOfCircle(Part.Circle(V(-89, 50, 0), V(0, 0, 1), 5), math.radians(90), math.radians(180)), False)
sketch14.addGeometry(Part.LineSegment(V(-89, 31, 0), V(-65, 31, 0)), False)
sketch14.addGeometry(Part.ArcOfCircle(Part.Circle(V(-65, 26, 0), V(0, 0, 1), 5), math.radians(0), math.radians(90)), False)
sketch14.addGeometry(Part.LineSegment(V(-60, 26, 0), V(-60, 18, 0)), False)
sketch14.addGeometry(Part.ArcOfCircle(Part.Circle(V(-65, 18, 0), V(0, 0, 1), 5), math.radians(-90), math.radians(0)), False)
sketch14.addGeometry(Part.LineSegment(V(-65, 13, 0), V(-89, 13, 0)), False)
sketch14.addGeometry(Part.ArcOfCircle(Part.Circle(V(-89, 18, 0), V(0, 0, 1), 5), math.radians(180), math.radians(270)), False)
sketch14.addGeometry(Part.LineSegment(V(-94, 18, 0), V(-94, 26, 0)), False)
sketch14.addGeometry(Part.ArcOfCircle(Part.Circle(V(-89, 26, 0), V(0, 0, 1), 5), math.radians(90), math.radians(180)), False)
sketch14.addConstraint(Sketcher.Constraint("Tangent", 0, 2, 1, 2))
sketch14.addConstraint(Sketcher.Constraint("Tangent", 1, 1, 2, 1))
sketch14.addConstraint(Sketcher.Constraint("Tangent", 2, 2, 3, 2))
sketch14.addConstraint(Sketcher.Constraint("Tangent", 3, 1, 4, 1))
sketch14.addConstraint(Sketcher.Constraint("Tangent", 4, 2, 5, 2))
sketch14.addConstraint(Sketcher.Constraint("Tangent", 5, 1, 6, 1))
sketch14.addConstraint(Sketcher.Constraint("Tangent", 6, 2, 7, 2))
sketch14.addConstraint(Sketcher.Constraint("Tangent", 7, 1, 0, 1))
sketch14.addConstraint(Sketcher.Constraint("Tangent", 8, 2, 9, 2))
sketch14.addConstraint(Sketcher.Constraint("Tangent", 9, 1, 10, 1))
sketch14.addConstraint(Sketcher.Constraint("Tangent", 10, 2, 11, 2))
sketch14.addConstraint(Sketcher.Constraint("Tangent", 11, 1, 12, 1))
sketch14.addConstraint(Sketcher.Constraint("Tangent", 12, 2, 13, 2))
sketch14.addConstraint(Sketcher.Constraint("Tangent", 13, 1, 14, 1))
sketch14.addConstraint(Sketcher.Constraint("Tangent", 14, 2, 15, 2))
sketch14.addConstraint(Sketcher.Constraint("Tangent", 15, 1, 8, 1))
sketch14.addConstraint(Sketcher.Constraint("Horizontal", 0))
sketch14.addConstraint(Sketcher.Constraint("Vertical", 2))
sketch14.addConstraint(Sketcher.Constraint("Horizontal", 4))
sketch14.addConstraint(Sketcher.Constraint("Vertical", 6))
sketch14.addConstraint(Sketcher.Constraint("Horizontal", 8))
sketch14.addConstraint(Sketcher.Constraint("Vertical", 10))
sketch14.addConstraint(Sketcher.Constraint("Horizontal", 12))
sketch14.addConstraint(Sketcher.Constraint("Vertical", 14))
sketch14.addConstraint(Sketcher.Constraint("Equal", 1, 3))
sketch14.addConstraint(Sketcher.Constraint("Equal", 3, 5))
sketch14.addConstraint(Sketcher.Constraint("Equal", 5, 7))
sketch14.addConstraint(Sketcher.Constraint("Equal", 7, 9))
sketch14.addConstraint(Sketcher.Constraint("Equal", 9, 11))
sketch14.addConstraint(Sketcher.Constraint("Equal", 11, 13))
sketch14.addConstraint(Sketcher.Constraint("Equal", 13, 15))
sketch14.addConstraint(Sketcher.Constraint("Vertical", 3, 3, 9, 3))
sketch14.addConstraint(Sketcher.Constraint("Vertical", 7, 3, 13, 3))
sketch14.addConstraint(Sketcher.Constraint("Equal", 6, 10))
sketch14.addConstraint(Sketcher.Constraint("Radius", 1, 5.0))
sketch14.addConstraint(Sketcher.Constraint("DistanceX", 0, 1, 0, 2, 24.0))
sketch14.addConstraint(Sketcher.Constraint("DistanceY", 2, 2, 2, 1, 8.5))
sketch14.addConstraint(Sketcher.Constraint("DistanceY", 9, 3, 3, 3, 15.0))
sketch14.addConstraint(Sketcher.Constraint("DistanceX", 1, 3, -1, 1, 64.874466))
sketch14.addConstraint(Sketcher.Constraint("DistanceY", -1, 1, 1, 3, 49.946435))
pocket11 = body.newObject("PartDesign::Pocket", "Pocket010")
pocket11.Profile = sketch14
pocket11.Length = 1
pocket11.Reversed = True

# Sketch on XZ plane
sketch15 = body.newObject("Sketcher::SketchObject", "Sketch014")
sketch15.AttachmentSupport = (doc.getObject("XZ_Plane"), [""])
sketch15.MapMode = "FlatFace"
sketch15.AttachmentOffset = App.Placement(V(0, 0, -19), App.Rotation())
sketch15.addGeometry(Part.LineSegment(V(-107.9, 57.4, 0), V(-104.9, 57.4, 0)), False)
sketch15.addGeometry(Part.ArcOfCircle(Part.Circle(V(-104.9, 54.9, 0), V(0, 0, 1), 2.5), math.radians(0), math.radians(90)), False)
sketch15.addGeometry(Part.LineSegment(V(-102.4, 54.9, 0), V(-102.4, 45.9, 0)), False)
sketch15.addGeometry(Part.ArcOfCircle(Part.Circle(V(-104.9, 45.9, 0), V(0, 0, 1), 2.5), math.radians(-90), math.radians(0)), False)
sketch15.addGeometry(Part.LineSegment(V(-104.9, 43.4, 0), V(-107.9, 43.4, 0)), False)
sketch15.addGeometry(Part.ArcOfCircle(Part.Circle(V(-107.9, 45.9, 0), V(0, 0, 1), 2.5), math.radians(180), math.radians(270)), False)
sketch15.addGeometry(Part.LineSegment(V(-110.4, 45.9, 0), V(-110.4, 54.9, 0)), False)
sketch15.addGeometry(Part.ArcOfCircle(Part.Circle(V(-107.9, 54.9, 0), V(0, 0, 1), 2.5), math.radians(90), math.radians(180)), False)
sketch15.addGeometry(Part.LineSegment(V(-107.9, 26.4, 0), V(-104.9, 26.4, 0)), False)
sketch15.addGeometry(Part.ArcOfCircle(Part.Circle(V(-104.9, 23.9, 0), V(0, 0, 1), 2.5), math.radians(0), math.radians(90)), False)
sketch15.addGeometry(Part.LineSegment(V(-102.4, 23.9, 0), V(-102.4, 12.9, 0)), False)
sketch15.addGeometry(Part.ArcOfCircle(Part.Circle(V(-104.9, 12.9, 0), V(0, 0, 1), 2.5), math.radians(-90), math.radians(0)), False)
sketch15.addGeometry(Part.LineSegment(V(-104.9, 10.4, 0), V(-107.9, 10.4, 0)), False)
sketch15.addGeometry(Part.ArcOfCircle(Part.Circle(V(-107.9, 12.9, 0), V(0, 0, 1), 2.5), math.radians(180), math.radians(270)), False)
sketch15.addGeometry(Part.LineSegment(V(-110.4, 12.9, 0), V(-110.4, 23.9, 0)), False)
sketch15.addGeometry(Part.ArcOfCircle(Part.Circle(V(-107.9, 23.9, 0), V(0, 0, 1), 2.5), math.radians(90), math.radians(180)), False)
sketch15.addConstraint(Sketcher.Constraint("Tangent", 0, 2, 1, 2))
sketch15.addConstraint(Sketcher.Constraint("Tangent", 1, 1, 2, 1))
sketch15.addConstraint(Sketcher.Constraint("Tangent", 2, 2, 3, 2))
sketch15.addConstraint(Sketcher.Constraint("Tangent", 3, 1, 4, 1))
sketch15.addConstraint(Sketcher.Constraint("Tangent", 4, 2, 5, 2))
sketch15.addConstraint(Sketcher.Constraint("Tangent", 5, 1, 6, 1))
sketch15.addConstraint(Sketcher.Constraint("Tangent", 6, 2, 7, 2))
sketch15.addConstraint(Sketcher.Constraint("Tangent", 7, 1, 0, 1))
sketch15.addConstraint(Sketcher.Constraint("Tangent", 8, 2, 9, 2))
sketch15.addConstraint(Sketcher.Constraint("Tangent", 9, 1, 10, 1))
sketch15.addConstraint(Sketcher.Constraint("Tangent", 10, 2, 11, 2))
sketch15.addConstraint(Sketcher.Constraint("Tangent", 11, 1, 12, 1))
sketch15.addConstraint(Sketcher.Constraint("Tangent", 12, 2, 13, 2))
sketch15.addConstraint(Sketcher.Constraint("Tangent", 13, 1, 14, 1))
sketch15.addConstraint(Sketcher.Constraint("Tangent", 14, 2, 15, 2))
sketch15.addConstraint(Sketcher.Constraint("Tangent", 15, 1, 8, 1))
sketch15.addConstraint(Sketcher.Constraint("Horizontal", 0))
sketch15.addConstraint(Sketcher.Constraint("Vertical", 2))
sketch15.addConstraint(Sketcher.Constraint("Horizontal", 4))
sketch15.addConstraint(Sketcher.Constraint("Vertical", 6))
sketch15.addConstraint(Sketcher.Constraint("Horizontal", 8))
sketch15.addConstraint(Sketcher.Constraint("Vertical", 10))
sketch15.addConstraint(Sketcher.Constraint("Horizontal", 12))
sketch15.addConstraint(Sketcher.Constraint("Vertical", 14))
sketch15.addConstraint(Sketcher.Constraint("Equal", 1, 3))
sketch15.addConstraint(Sketcher.Constraint("Equal", 3, 5))
sketch15.addConstraint(Sketcher.Constraint("Equal", 5, 7))
sketch15.addConstraint(Sketcher.Constraint("Equal", 7, 9))
sketch15.addConstraint(Sketcher.Constraint("Equal", 9, 11))
sketch15.addConstraint(Sketcher.Constraint("Equal", 11, 13))
sketch15.addConstraint(Sketcher.Constraint("Equal", 13, 15))
sketch15.addConstraint(Sketcher.Constraint("Vertical", 3, 3, 9, 3))
sketch15.addConstraint(Sketcher.Constraint("Vertical", 7, 3, 13, 3))
sketch15.addConstraint(Sketcher.Constraint("Radius", 1, 2.5))
sketch15.addConstraint(Sketcher.Constraint("DistanceX", 0, 1, 0, 2, 3.0))
sketch15.addConstraint(Sketcher.Constraint("DistanceY", 2, 2, 2, 1, 9.0))
sketch15.addConstraint(Sketcher.Constraint("DistanceY", 10, 2, 10, 1, 11.0))
sketch15.addConstraint(Sketcher.Constraint("DistanceY", 9, 3, 3, 3, 22.0))
sketch15.addConstraint(Sketcher.Constraint("DistanceX", 1, 3, -1, 1, 104.874466))
sketch15.addConstraint(Sketcher.Constraint("DistanceY", -1, 1, 1, 3, 54.946435))
pocket12 = body.newObject("PartDesign::Pocket", "Pocket011")
pocket12.Profile = sketch15
pocket12.Length = 1
pocket12.Reversed = True

doc.recompute()
